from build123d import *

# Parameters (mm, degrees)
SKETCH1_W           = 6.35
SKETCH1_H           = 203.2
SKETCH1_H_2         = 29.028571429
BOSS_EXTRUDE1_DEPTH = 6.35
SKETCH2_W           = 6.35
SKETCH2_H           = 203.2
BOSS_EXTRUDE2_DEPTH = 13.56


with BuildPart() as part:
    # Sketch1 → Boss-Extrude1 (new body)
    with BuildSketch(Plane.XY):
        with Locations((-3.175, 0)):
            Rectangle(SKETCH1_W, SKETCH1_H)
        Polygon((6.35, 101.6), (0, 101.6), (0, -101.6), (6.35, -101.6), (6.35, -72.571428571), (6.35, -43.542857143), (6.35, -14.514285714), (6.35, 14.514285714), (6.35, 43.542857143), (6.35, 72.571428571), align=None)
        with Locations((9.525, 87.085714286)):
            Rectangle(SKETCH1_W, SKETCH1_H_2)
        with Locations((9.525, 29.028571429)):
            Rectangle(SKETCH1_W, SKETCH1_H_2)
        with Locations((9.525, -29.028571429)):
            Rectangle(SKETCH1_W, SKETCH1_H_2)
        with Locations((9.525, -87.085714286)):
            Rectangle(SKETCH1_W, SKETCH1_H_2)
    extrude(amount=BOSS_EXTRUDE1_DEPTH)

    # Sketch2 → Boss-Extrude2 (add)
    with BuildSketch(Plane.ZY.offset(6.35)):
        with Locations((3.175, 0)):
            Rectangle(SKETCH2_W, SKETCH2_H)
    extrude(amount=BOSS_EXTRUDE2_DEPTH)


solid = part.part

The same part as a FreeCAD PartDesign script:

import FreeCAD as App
import Part
import Sketcher
from FreeCAD import Vector
Q = App.Units.Quantity

doc = App.newDocument("Part")
body = doc.addObject("PartDesign::Body", "Body")

# Sketch on XY plane
sketch1 = doc.addObject("Sketcher::SketchObject", "Sketch")
body.addObject(sketch1)
sketch1.AttachmentSupport = (doc.XY_Plane, [""])
sketch1.MapMode = "FlatFace"
sketch1.addGeometry(Part.LineSegment(Vector(-6, 102, 0), Vector(-6, -102, 0)), False)
sketch1.addGeometry(Part.LineSegment(Vector(-6, -102, 0), Vector(6, -102, 0)), False)
sketch1.addGeometry(Part.LineSegment(Vector(6, -102, 0), Vector(13, -102, 0)), False)
sketch1.addGeometry(Part.LineSegment(Vector(13, -102, 0), Vector(13, -73, 0)), False)
sketch1.addGeometry(Part.LineSegment(Vector(13, -73, 0), Vector(6, -73, 0)), False)
sketch1.addGeometry(Part.LineSegment(Vector(6, -73, 0), Vector(6, -44, 0)), False)
sketch1.addGeometry(Part.LineSegment(Vector(6, -44, 0), Vector(13, -44, 0)), False)
sketch1.addGeometry(Part.LineSegment(Vector(13, -44, 0), Vector(13, -15, 0)), False)
sketch1.addGeometry(Part.LineSegment(Vector(13, -15, 0), Vector(6, -15, 0)), False)
sketch1.addGeometry(Part.LineSegment(Vector(6, -15, 0), Vector(6, 15, 0)), False)
sketch1.addGeometry(Part.LineSegment(Vector(6, 15, 0), Vector(13, 15, 0)), False)
sketch1.addGeometry(Part.LineSegment(Vector(13, 15, 0), Vector(13, 44, 0)), False)
sketch1.addGeometry(Part.LineSegment(Vector(13, 44, 0), Vector(6, 44, 0)), False)
sketch1.addGeometry(Part.LineSegment(Vector(6, 44, 0), Vector(6, 73, 0)), False)
sketch1.addGeometry(Part.LineSegment(Vector(6, 73, 0), Vector(13, 73, 0)), False)
sketch1.addGeometry(Part.LineSegment(Vector(13, 73, 0), Vector(13, 102, 0)), False)
sketch1.addGeometry(Part.LineSegment(Vector(13, 102, 0), Vector(6, 102, 0)), False)
sketch1.addGeometry(Part.LineSegment(Vector(6, 102, 0), Vector(-6, 102, 0)), False)
sketch1.addConstraint(Sketcher.Constraint("Coincident", 0, 2, 1, 1))
sketch1.addConstraint(Sketcher.Constraint("Coincident", 1, 2, 2, 1))
sketch1.addConstraint(Sketcher.Constraint("Coincident", 2, 2, 3, 1))
sketch1.addConstraint(Sketcher.Constraint("Coincident", 3, 2, 4, 1))
sketch1.addConstraint(Sketcher.Constraint("Coincident", 4, 2, 5, 1))
sketch1.addConstraint(Sketcher.Constraint("Coincident", 5, 2, 6, 1))
sketch1.addConstraint(Sketcher.Constraint("Coincident", 6, 2, 7, 1))
sketch1.addConstraint(Sketcher.Constraint("Coincident", 7, 2, 8, 1))
sketch1.addConstraint(Sketcher.Constraint("Coincident", 8, 2, 9, 1))
sketch1.addConstraint(Sketcher.Constraint("Coincident", 9, 2, 10, 1))
sketch1.addConstraint(Sketcher.Constraint("Coincident", 10, 2, 11, 1))
sketch1.addConstraint(Sketcher.Constraint("Coincident", 11, 2, 12, 1))
sketch1.addConstraint(Sketcher.Constraint("Coincident", 12, 2, 13, 1))
sketch1.addConstraint(Sketcher.Constraint("Coincident", 13, 2, 14, 1))
sketch1.addConstraint(Sketcher.Constraint("Coincident", 14, 2, 15, 1))
sketch1.addConstraint(Sketcher.Constraint("Coincident", 15, 2, 16, 1))
sketch1.addConstraint(Sketcher.Constraint("Coincident", 16, 2, 17, 1))
sketch1.addConstraint(Sketcher.Constraint("Coincident", 17, 2, 0, 1))
sketch1.addConstraint(Sketcher.Constraint("Vertical", 0))
sketch1.addConstraint(Sketcher.Constraint("Horizontal", 1))
sketch1.addConstraint(Sketcher.Constraint("Horizontal", 2))
sketch1.addConstraint(Sketcher.Constraint("Vertical", 3))
sketch1.addConstraint(Sketcher.Constraint("Horizontal", 4))
sketch1.addConstraint(Sketcher.Constraint("Vertical", 5))
sketch1.addConstraint(Sketcher.Constraint("Horizontal", 6))
sketch1.addConstraint(Sketcher.Constraint("Vertical", 7))
sketch1.addConstraint(Sketcher.Constraint("Horizontal", 8))
sketch1.addConstraint(Sketcher.Constraint("Vertical", 9))
sketch1.addConstraint(Sketcher.Constraint("Horizontal", 10))
sketch1.addConstraint(Sketcher.Constraint("Vertical", 11))
sketch1.addConstraint(Sketcher.Constraint("Horizontal", 12))
sketch1.addConstraint(Sketcher.Constraint("Vertical", 13))
sketch1.addConstraint(Sketcher.Constraint("Horizontal", 14))
sketch1.addConstraint(Sketcher.Constraint("Vertical", 15))
sketch1.addConstraint(Sketcher.Constraint("Horizontal", 16))
sketch1.addConstraint(Sketcher.Constraint("Horizontal", 17))
sketch1.addConstraint(Sketcher.Constraint("Symmetric", 0, 2, 16, 2, -1, 1))
sketch1.addConstraint(Sketcher.Constraint("Symmetric", 7, 2, 10, 2, -1))
sketch1.addConstraint(Sketcher.Constraint("Symmetric", 5, 2, 12, 2, -1))
sketch1.addConstraint(Sketcher.Constraint("Symmetric", 3, 2, 14, 2, -1))
sketch1.addConstraint(Sketcher.Constraint("Vertical", 1, 2, 4, 2))
sketch1.addConstraint(Sketcher.Constraint("Vertical", 3, 2, 6, 2))
sketch1.addConstraint(Sketcher.Constraint("Vertical", 5, 2, 8, 2))
sketch1.addConstraint(Sketcher.Constraint("Vertical", 13, 2, 16, 2))
sketch1.addConstraint(Sketcher.Constraint("Equal", 3, 5))
sketch1.addConstraint(Sketcher.Constraint("Equal", 5, 7))
sketch1.addConstraint(Sketcher.Constraint("Equal", 7, 9))
sketch1.addConstraint(Sketcher.Constraint("DistanceY", 0, 2, 0, 1, Q("8 in")))
sketch1.addConstraint(Sketcher.Constraint("DistanceX", 1, 1, 1, 2, Q("0.5 in")))
sketch1.addConstraint(Sketcher.Constraint("DistanceX", 2, 1, 2, 2, Q("0.25 in")))
pad1 = doc.addObject("PartDesign::Pad", "Pad")
body.addObject(pad1)
pad1.Profile = sketch1
pad1.Length = Q("0.25 in")

# Sketch on YZ plane
sketch2 = doc.addObject("Sketcher::SketchObject", "Sketch001")
body.addObject(sketch2)
sketch2.AttachmentSupport = (doc.YZ_Plane, [""])
sketch2.MapMode = "FlatFace"
sketch2.AttachmentOffset = App.Placement(Vector(0, 0, -0.25 * 25.4), App.Rotation())
sketch2.addGeometry(Part.LineSegment(Vector(102, 0, 0), Vector(-102, 0, 0)), False)
sketch2.addGeometry(Part.LineSegment(Vector(-102, 0, 0), Vector(-102, 6, 0)), False)
sketch2.addGeometry(Part.LineSegment(Vector(-102, 6, 0), Vector(102, 6, 0)), False)
sketch2.addGeometry(Part.LineSegment(Vector(102, 6, 0), Vector(102, 0, 0)), False)
sketch2.addConstraint(Sketcher.Constraint("Coincident", 0, 2, 1, 1))
sketch2.addConstraint(Sketcher.Constraint("Coincident", 1, 2, 2, 1))
sketch2.addConstraint(Sketcher.Constraint("Coincident", 2, 2, 3, 1))
sketch2.addConstraint(Sketcher.Constraint("Coincident", 3, 2, 0, 1))
sketch2.addConstraint(Sketcher.Constraint("Horizontal", 0))
sketch2.addConstraint(Sketcher.Constraint("Vertical", 1))
sketch2.addConstraint(Sketcher.Constraint("Horizontal", 2))
sketch2.addConstraint(Sketcher.Constraint("Vertical", 3))
sketch2.addConstraint(Sketcher.Constraint("Symmetric", 0, 2, 3, 2, -1, 1))
sketch2.addConstraint(Sketcher.Constraint("DistanceX", 0, 2, 0, 1, Q("8 in")))
sketch2.addConstraint(Sketcher.Constraint("DistanceY", 1, 1, 1, 2, Q("0.25 in")))
pad2 = doc.addObject("PartDesign::Pad", "Pad001")
body.addObject(pad2)
pad2.Profile = sketch2
pad2.Length = 13.56
pad2.Reversed = True

doc.recompute()
